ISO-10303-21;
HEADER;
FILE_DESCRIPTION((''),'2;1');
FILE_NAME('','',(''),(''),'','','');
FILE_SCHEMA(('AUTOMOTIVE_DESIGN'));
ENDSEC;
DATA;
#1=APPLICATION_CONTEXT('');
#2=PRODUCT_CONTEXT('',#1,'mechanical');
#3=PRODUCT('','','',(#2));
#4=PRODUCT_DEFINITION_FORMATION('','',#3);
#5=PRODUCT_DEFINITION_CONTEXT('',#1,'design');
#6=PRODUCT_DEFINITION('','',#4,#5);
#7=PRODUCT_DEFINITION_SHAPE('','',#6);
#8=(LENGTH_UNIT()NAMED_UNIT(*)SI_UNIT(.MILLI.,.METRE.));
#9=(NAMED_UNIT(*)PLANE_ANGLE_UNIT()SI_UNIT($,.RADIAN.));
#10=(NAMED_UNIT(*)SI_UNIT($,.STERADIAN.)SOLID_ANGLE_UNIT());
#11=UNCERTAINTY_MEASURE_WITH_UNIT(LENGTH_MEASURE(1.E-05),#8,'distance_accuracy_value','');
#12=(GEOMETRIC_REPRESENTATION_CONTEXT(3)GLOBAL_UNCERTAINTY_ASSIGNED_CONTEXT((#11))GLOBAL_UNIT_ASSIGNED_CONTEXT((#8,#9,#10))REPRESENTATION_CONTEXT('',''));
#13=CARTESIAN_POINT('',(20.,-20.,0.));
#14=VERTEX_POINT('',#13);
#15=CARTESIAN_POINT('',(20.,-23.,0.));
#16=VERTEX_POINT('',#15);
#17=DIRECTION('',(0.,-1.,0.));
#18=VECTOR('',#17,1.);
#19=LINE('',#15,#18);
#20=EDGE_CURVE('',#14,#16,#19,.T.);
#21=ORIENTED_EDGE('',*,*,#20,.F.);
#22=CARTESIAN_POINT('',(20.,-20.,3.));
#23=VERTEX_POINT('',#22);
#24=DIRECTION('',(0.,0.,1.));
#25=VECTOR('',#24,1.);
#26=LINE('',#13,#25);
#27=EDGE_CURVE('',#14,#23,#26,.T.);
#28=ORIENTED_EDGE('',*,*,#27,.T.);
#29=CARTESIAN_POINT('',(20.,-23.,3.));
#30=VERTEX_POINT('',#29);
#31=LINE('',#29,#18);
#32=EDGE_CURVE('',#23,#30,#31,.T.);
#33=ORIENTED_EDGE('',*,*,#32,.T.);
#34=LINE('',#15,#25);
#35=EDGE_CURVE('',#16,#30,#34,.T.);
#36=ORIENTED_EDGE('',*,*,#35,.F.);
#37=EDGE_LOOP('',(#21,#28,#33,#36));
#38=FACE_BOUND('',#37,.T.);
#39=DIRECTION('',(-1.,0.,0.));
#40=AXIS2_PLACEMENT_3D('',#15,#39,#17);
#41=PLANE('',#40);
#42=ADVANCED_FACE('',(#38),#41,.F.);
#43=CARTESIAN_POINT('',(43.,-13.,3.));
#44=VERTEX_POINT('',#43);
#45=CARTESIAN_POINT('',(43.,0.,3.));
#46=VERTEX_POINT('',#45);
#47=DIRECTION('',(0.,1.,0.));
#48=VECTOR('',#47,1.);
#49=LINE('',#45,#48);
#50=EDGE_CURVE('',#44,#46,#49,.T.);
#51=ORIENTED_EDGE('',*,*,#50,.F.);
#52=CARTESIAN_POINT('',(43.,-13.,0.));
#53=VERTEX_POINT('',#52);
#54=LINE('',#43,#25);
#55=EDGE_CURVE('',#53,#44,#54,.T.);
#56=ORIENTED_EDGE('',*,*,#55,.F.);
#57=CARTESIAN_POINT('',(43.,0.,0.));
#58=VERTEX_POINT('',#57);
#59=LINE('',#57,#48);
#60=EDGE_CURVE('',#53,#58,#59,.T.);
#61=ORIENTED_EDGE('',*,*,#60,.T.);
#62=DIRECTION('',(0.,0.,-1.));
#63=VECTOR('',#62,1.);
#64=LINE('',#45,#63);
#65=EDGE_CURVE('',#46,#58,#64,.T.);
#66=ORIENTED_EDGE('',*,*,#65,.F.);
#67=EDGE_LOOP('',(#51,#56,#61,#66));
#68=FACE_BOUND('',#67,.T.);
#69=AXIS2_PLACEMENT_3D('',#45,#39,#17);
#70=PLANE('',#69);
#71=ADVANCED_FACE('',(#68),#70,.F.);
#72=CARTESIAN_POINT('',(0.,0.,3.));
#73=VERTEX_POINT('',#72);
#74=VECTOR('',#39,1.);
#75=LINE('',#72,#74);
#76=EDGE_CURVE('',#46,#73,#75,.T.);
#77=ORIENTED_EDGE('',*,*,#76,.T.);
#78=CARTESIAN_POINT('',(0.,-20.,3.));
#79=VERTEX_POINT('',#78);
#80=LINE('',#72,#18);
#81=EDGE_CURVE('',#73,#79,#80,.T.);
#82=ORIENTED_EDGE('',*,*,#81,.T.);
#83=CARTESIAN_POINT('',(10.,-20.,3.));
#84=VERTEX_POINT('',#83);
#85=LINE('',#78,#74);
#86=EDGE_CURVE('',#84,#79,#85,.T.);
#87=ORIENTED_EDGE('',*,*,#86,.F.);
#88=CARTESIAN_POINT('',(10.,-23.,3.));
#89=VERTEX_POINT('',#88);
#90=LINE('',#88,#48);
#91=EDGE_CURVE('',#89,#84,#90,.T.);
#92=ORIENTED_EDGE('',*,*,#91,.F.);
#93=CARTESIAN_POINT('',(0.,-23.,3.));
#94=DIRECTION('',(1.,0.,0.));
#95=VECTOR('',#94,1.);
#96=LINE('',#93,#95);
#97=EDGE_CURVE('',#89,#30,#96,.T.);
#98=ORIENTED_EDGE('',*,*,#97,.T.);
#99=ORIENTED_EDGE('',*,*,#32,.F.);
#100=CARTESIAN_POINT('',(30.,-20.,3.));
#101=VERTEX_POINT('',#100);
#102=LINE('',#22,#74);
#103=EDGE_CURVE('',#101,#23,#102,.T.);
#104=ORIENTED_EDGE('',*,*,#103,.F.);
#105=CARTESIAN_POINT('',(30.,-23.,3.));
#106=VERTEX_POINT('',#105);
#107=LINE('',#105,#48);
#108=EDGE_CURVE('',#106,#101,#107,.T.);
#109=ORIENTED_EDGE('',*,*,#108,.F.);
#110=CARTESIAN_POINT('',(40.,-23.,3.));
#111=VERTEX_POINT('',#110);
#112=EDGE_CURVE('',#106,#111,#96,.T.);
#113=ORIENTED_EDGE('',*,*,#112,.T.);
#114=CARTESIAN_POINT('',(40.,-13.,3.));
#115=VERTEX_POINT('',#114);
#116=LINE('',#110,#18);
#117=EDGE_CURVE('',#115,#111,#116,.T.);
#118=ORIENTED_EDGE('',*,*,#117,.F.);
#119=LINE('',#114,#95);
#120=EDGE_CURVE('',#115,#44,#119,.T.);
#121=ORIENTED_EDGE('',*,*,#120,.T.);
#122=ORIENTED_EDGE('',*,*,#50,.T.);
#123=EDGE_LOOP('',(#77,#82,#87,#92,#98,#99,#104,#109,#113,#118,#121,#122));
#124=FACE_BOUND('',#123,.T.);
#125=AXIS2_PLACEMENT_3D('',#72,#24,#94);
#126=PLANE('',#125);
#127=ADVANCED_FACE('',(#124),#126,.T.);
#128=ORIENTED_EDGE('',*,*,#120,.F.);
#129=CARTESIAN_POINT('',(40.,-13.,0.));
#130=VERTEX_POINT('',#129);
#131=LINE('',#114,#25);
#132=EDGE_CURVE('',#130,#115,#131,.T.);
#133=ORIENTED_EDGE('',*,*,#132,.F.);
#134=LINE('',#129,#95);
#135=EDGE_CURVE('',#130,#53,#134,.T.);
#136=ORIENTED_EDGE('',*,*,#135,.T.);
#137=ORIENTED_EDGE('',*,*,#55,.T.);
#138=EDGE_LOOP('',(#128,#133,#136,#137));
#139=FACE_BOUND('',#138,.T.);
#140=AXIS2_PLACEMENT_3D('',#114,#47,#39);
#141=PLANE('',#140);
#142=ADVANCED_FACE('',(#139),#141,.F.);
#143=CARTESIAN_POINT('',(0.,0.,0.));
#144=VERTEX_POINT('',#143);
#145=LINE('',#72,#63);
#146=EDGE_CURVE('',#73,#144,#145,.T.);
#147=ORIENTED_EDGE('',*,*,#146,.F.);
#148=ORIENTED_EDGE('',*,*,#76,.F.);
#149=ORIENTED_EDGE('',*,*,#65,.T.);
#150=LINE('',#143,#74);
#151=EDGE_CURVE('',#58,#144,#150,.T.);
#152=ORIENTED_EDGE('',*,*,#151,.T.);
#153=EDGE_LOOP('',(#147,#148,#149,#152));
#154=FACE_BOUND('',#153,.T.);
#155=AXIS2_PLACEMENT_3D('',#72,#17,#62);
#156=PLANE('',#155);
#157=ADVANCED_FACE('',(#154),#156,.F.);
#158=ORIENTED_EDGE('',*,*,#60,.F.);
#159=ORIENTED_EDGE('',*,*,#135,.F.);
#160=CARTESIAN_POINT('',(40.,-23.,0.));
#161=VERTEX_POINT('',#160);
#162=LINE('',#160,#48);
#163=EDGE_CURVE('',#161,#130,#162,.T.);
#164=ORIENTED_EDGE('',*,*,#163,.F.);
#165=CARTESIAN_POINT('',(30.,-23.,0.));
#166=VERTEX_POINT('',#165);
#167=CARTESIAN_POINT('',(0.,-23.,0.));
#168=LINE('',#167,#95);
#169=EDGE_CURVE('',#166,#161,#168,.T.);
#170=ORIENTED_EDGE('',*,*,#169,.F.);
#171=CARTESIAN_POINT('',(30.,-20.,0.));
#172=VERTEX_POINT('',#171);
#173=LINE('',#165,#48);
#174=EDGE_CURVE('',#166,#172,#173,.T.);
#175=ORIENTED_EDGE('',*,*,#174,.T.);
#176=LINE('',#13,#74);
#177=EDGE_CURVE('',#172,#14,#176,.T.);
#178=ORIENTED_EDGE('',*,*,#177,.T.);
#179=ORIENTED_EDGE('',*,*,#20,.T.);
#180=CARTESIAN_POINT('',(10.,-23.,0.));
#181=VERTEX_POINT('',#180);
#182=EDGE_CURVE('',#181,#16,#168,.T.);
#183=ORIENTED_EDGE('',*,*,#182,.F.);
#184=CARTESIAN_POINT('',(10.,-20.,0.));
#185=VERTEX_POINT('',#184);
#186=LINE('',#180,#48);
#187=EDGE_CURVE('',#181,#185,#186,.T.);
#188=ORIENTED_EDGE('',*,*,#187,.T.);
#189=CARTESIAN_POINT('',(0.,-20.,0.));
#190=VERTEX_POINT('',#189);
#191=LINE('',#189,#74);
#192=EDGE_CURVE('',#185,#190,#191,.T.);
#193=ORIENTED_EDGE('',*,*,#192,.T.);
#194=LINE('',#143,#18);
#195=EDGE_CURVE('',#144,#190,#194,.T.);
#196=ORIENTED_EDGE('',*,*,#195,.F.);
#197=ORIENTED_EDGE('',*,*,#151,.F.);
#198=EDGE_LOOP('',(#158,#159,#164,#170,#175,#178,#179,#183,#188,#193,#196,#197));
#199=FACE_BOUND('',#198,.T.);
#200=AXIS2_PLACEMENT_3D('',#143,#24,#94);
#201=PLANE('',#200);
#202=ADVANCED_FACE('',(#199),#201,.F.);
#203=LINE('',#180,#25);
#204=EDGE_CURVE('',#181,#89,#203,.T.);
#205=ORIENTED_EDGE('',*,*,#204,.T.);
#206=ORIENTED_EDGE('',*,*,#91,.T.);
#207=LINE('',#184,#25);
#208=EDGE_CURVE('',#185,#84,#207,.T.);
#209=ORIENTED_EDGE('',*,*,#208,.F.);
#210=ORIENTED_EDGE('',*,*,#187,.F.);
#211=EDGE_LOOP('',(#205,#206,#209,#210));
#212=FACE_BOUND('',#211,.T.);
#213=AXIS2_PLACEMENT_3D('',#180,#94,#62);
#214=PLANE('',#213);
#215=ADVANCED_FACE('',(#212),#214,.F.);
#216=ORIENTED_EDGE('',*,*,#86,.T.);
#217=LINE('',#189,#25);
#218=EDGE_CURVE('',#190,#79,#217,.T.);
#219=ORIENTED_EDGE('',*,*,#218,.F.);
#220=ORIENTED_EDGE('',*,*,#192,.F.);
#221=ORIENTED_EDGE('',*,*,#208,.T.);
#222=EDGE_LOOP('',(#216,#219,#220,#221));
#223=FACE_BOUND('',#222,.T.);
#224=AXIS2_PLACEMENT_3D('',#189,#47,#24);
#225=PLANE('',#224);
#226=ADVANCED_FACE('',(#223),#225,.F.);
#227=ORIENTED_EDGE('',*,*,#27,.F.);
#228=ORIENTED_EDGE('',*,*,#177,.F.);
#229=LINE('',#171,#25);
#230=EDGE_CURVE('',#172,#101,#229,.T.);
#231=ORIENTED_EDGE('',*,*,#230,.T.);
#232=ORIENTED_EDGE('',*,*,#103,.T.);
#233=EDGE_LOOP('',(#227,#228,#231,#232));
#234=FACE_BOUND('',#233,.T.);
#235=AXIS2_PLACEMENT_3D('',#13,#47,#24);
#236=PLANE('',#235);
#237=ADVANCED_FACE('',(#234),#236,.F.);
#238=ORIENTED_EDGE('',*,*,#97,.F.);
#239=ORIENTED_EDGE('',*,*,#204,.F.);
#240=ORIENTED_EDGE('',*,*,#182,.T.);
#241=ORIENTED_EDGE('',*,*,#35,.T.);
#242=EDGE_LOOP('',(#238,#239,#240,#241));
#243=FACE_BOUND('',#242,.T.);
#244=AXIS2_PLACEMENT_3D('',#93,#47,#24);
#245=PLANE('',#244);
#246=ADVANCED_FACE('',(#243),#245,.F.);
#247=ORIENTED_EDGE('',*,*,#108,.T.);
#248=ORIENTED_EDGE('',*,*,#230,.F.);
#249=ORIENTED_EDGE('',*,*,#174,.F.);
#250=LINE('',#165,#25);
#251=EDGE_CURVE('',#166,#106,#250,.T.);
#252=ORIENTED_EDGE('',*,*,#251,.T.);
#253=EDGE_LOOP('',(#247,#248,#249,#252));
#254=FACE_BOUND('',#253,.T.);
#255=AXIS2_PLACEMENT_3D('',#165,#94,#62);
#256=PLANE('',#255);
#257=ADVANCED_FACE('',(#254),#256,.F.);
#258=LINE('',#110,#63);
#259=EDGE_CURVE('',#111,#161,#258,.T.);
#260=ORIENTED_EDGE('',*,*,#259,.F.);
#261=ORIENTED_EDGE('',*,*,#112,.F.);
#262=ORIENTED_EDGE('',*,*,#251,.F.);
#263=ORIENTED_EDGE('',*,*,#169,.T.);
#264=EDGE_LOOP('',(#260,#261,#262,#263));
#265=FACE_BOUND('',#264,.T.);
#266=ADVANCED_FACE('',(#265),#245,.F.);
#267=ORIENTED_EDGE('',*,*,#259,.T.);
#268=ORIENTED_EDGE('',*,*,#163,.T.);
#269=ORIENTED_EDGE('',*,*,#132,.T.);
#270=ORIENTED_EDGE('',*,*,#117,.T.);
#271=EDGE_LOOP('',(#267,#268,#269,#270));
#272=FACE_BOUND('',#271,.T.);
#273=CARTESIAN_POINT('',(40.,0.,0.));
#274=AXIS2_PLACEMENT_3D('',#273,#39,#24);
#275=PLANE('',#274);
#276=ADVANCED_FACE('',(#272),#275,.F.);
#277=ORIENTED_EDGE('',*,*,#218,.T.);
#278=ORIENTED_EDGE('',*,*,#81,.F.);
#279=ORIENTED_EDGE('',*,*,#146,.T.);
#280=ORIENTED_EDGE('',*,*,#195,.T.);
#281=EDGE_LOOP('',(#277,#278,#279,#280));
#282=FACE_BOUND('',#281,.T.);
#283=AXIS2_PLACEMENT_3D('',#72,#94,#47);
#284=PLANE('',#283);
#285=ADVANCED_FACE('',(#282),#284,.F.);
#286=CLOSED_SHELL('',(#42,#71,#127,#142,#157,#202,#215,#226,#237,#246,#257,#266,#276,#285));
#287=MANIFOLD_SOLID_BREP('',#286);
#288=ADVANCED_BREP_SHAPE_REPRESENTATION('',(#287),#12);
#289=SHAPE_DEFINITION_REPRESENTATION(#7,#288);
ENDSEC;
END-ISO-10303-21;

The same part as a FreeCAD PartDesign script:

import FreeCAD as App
import Part
import Sketcher

V = App.Vector
Q = App.Units.Quantity


def add_polygon(sketch, points):
    """Adds a closed chain of lines whose ends are joined by coincident constraints."""
    first, n = sketch.GeometryCount, len(points)
    for a, b in zip(points, points[1:] + points[:1]):
        sketch.addGeometry(Part.LineSegment(App.Vector(*a, 0), App.Vector(*b, 0)), False)
    for i in range(n):
        sketch.addConstraint(Sketcher.Constraint("Coincident", first + i, 2, first + (i + 1) % n, 1))

doc = App.newDocument("Part")
body = doc.addObject("PartDesign::Body", "Body")

# Sketch on XY plane
sketch1 = body.newObject("Sketcher::SketchObject", "Sketch")
sketch1.AttachmentSupport = (doc.getObject("XY_Plane"), [""])
sketch1.MapMode = "FlatFace"
add_polygon(sketch1, [(0, 0), (0, -23), (43, -23), (43, 0)])  # lines 0-3
sketch1.addConstraint(Sketcher.Constraint("Vertical", 0))
sketch1.addConstraint(Sketcher.Constraint("Horizontal", 1))
sketch1.addConstraint(Sketcher.Constraint("Vertical", 2))
sketch1.addConstraint(Sketcher.Constraint("Horizontal", 3))
sketch1.addConstraint(Sketcher.Constraint("Coincident", 3, 2, -1, 1))
sketch1.addConstraint(Sketcher.Constraint("DistanceX", 1, 1, 1, 2, Q("43 mm")))
sketch1.addConstraint(Sketcher.Constraint("DistanceY", 0, 2, 0, 1, Q("23 mm")))
pad1 = body.newObject("PartDesign::Pad", "Pad")
pad1.Profile = sketch1
pad1.Length = 3

# Sketch on YZ plane
sketch2 = body.newObject("Sketcher::SketchObject", "Sketch001")
sketch2.AttachmentSupport = (doc.getObject("YZ_Plane"), [""])
sketch2.MapMode = "FlatFace"
sketch2.AttachmentOffset = App.Placement(V(0, 0, 43), App.Rotation())
add_polygon(sketch2, [(-13, 3), (-23, 3), (-23, 0), (-13, 0)])  # lines 0-3
sketch2.addConstraint(Sketcher.Constraint("Horizontal", 0))
sketch2.addConstraint(Sketcher.Constraint("Vertical", 1))
sketch2.addConstraint(Sketcher.Constraint("Horizontal", 2))
sketch2.addConstraint(Sketcher.Constraint("Vertical", 3))
sketch2.addConstraint(Sketcher.Constraint("PointOnObject", 1, 2, -1))
sketch2.addConstraint(Sketcher.Constraint("DistanceX", 0, 2, 0, 1, Q("10 mm")))
sketch2.addConstraint(Sketcher.Constraint("DistanceY", 1, 2, 1, 1, Q("3 mm")))
sketch2.addConstraint(Sketcher.Constraint("DistanceX", 0, 2, -1, 1, Q("23 mm")))
pocket1 = body.newObject("PartDesign::Pocket", "Pocket")
pocket1.Profile = sketch2
pocket1.Length = 3

# Sketch on XY plane
sketch3 = body.newObject("Sketcher::SketchObject", "Sketch002")
sketch3.AttachmentSupport = (doc.getObject("XY_Plane"), [""])
sketch3.MapMode = "FlatFace"
sketch3.AttachmentOffset = App.Placement(V(0, 0, 3), App.Rotation())
add_polygon(sketch3, [(0, -20), (0, -23), (10, -23), (10, -20)])  # lines 0-3
sketch3.addConstraint(Sketcher.Constraint("Vertical", 0))
sketch3.addConstraint(Sketcher.Constraint("Horizontal", 1))
sketch3.addConstraint(Sketcher.Constraint("Vertical", 2))
sketch3.addConstraint(Sketcher.Constraint("Horizontal", 3))
sketch3.addConstraint(Sketcher.Constraint("PointOnObject", 0, 2, -2))
sketch3.addConstraint(Sketcher.Constraint("DistanceX", 1, 1, 1, 2, Q("10 mm")))
sketch3.addConstraint(Sketcher.Constraint("DistanceY", 0, 2, 0, 1, Q("3 mm")))
sketch3.addConstraint(Sketcher.Constraint("DistanceY", 0, 2, -1, 1, Q("23 mm")))
pocket2 = body.newObject("PartDesign::Pocket", "Pocket001")
pocket2.Profile = sketch3
pocket2.Length = 3
doc.recompute()

linearpattern = body.newObject("PartDesign::LinearPattern", "LinearPattern")
linearpattern.Originals = [pocket2]
linearpattern.Direction = (doc.getObject("X_Axis"), [""])
linearpattern.Mode = "offset"
linearpattern.Offset = 20
linearpattern.Occurrences = 2
body.Tip = linearpattern

doc.recompute()
